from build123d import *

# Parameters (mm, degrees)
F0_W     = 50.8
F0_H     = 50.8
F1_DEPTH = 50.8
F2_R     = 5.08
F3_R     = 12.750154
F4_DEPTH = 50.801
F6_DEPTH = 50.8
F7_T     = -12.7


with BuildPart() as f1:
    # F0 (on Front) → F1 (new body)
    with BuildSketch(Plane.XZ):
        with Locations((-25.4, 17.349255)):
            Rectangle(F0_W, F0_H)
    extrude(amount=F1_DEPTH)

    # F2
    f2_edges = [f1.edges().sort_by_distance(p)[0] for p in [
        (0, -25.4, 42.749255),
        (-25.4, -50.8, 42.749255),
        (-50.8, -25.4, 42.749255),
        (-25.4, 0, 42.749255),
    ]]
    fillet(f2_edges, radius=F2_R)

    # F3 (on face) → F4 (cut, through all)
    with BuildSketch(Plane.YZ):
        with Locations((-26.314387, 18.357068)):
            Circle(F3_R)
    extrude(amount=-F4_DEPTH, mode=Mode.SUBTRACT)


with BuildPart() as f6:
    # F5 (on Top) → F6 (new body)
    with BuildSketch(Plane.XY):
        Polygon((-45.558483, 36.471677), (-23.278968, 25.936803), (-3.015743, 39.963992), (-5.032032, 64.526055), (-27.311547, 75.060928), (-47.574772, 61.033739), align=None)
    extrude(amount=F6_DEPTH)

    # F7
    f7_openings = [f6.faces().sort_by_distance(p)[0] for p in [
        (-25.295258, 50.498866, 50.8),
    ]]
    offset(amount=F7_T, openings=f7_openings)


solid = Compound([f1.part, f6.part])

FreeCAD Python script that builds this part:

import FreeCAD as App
import Part
import Sketcher
from FreeCAD import Vector
Q = App.Units.Quantity


def edges_at(feature, points):
    """Names of the edges that pass closest to the given points."""
    edges = feature.Shape.Edges
    near = lambda p: min(range(len(edges)), key=lambda i: edges[i].distToShape(Part.Vertex(*p))[0])
    return sorted({f"Edge{near(p) + 1}" for p in points})


def faces_at(feature, points):
    """Names of the faces that lie closest to the given points."""
    faces = feature.Shape.Faces
    near = lambda p: min(range(len(faces)), key=lambda i: faces[i].distToShape(Part.Vertex(*p))[0])
    return sorted({f"Face{near(p) + 1}" for p in points})

doc = App.newDocument("Part")
body = doc.addObject("PartDesign::Body", "Body")

# Sketch on XZ plane
sketch1 = body.newObject("Sketcher::SketchObject", "Sketch")
sketch1.AttachmentSupport = (doc.getObject("XZ_Plane"), [""])
sketch1.MapMode = "FlatFace"
sketch1.addGeometry([
    Part.LineSegment(Vector(-50.8, 42.749255, 0), Vector(-50.8, -8.050745, 0)),
    Part.LineSegment(Vector(-50.8, -8.050745, 0), Vector(0, -8.050745, 0)),
    Part.LineSegment(Vector(0, -8.050745, 0), Vector(0, 42.749255, 0)),
    Part.LineSegment(Vector(0, 42.749255, 0), Vector(-50.8, 42.749255, 0)),
], False)
sketch1.addConstraint([
    Sketcher.Constraint("Coincident", 0, 2, 1, 1),
    Sketcher.Constraint("Coincident", 1, 2, 2, 1),
    Sketcher.Constraint("Coincident", 2, 2, 3, 1),
    Sketcher.Constraint("Coincident", 3, 2, 0, 1),
    Sketcher.Constraint("Vertical", 0),
    Sketcher.Constraint("Horizontal", 1),
    Sketcher.Constraint("Vertical", 2),
    Sketcher.Constraint("Horizontal", 3),
    Sketcher.Constraint("PointOnObject", 1, 2, -2),
    Sketcher.Constraint("Equal", 3, 0),
    Sketcher.Constraint("DistanceX", 1, 1, 1, 2, Q("2 in")),
    Sketcher.Constraint("DistanceY", 0, 2, -1, 1, Q("8.050745 mm")),
])
pad1 = body.newObject("PartDesign::Pad", "Pad")
pad1.Profile = sketch1
pad1.Length = Q("2 in")
doc.recompute()

fillet = body.newObject("PartDesign::Fillet", "Fillet")
fillet.Base = (pad1, edges_at(pad1, [
    (0, -25.4, 42.749),
    (-25.4, -50.8, 42.749),
    (-50.8, -25.4, 42.749),
    (-25.4, 0, 42.749),
]))
fillet.Radius = Q("0.2 in")

# Sketch on YZ plane
sketch2 = body.newObject("Sketcher::SketchObject", "Sketch001")
sketch2.AttachmentSupport = (doc.getObject("YZ_Plane"), [""])
sketch2.MapMode = "FlatFace"
sketch2.addGeometry(Part.Circle(Vector(-26.314387, 18.357068, 0), Vector(0, 0, 1), 12.750154), False)
sketch2.addConstraint([
    Sketcher.Constraint("Diameter", 0, Q("25.500308 mm")),
    Sketcher.Constraint("DistanceY", -1, 1, 0, 3, Q("18.357068 mm")),
    Sketcher.Constraint("DistanceX", 0, 3, -1, 1, Q("26.314387 mm")),
])
pocket1 = body.newObject("PartDesign::Pocket", "Pocket")
pocket1.Profile = sketch2
pocket1.Type = "ThroughAll"
body2 = doc.addObject("PartDesign::Body", "Body001")

# Sketch on XY plane
sketch3 = body2.newObject("Sketcher::SketchObject", "Sketch002")
sketch3.AttachmentSupport = (doc.getObject("XY_Plane001"), [""])
sketch3.MapMode = "FlatFace"
sketch3.addGeometry([
    Part.LineSegment(Vector(-45.558483, 36.471677, 0), Vector(-23.278968, 25.936803, 0)),  # 0
    Part.LineSegment(Vector(-23.278968, 25.936803, 0), Vector(-3.015743, 39.963992, 0)),  # 1
    Part.LineSegment(Vector(-3.015743, 39.963992, 0), Vector(-5.032032, 64.526055, 0)),  # 2
    Part.LineSegment(Vector(-5.032032, 64.526055, 0), Vector(-27.311547, 75.060928, 0)),  # 3
    Part.LineSegment(Vector(-27.311547, 75.060928, 0), Vector(-47.574772, 61.033739, 0)),  # 4
    Part.LineSegment(Vector(-47.574772, 61.033739, 0), Vector(-45.558483, 36.471677, 0)),  # 5
], False)
sketch3.addConstraint([
    Sketcher.Constraint("Coincident", 0, 2, 1, 1),
    Sketcher.Constraint("Coincident", 1, 2, 2, 1),
    Sketcher.Constraint("Coincident", 2, 2, 3, 1),
    Sketcher.Constraint("Coincident", 3, 2, 4, 1),
    Sketcher.Constraint("Coincident", 4, 2, 5, 1),
    Sketcher.Constraint("Coincident", 5, 2, 0, 1),
    Sketcher.Constraint("Parallel", 0, 3),
    Sketcher.Constraint("Parallel", 1, 4),
    Sketcher.Constraint("Parallel", 2, 5),
    Sketcher.Constraint("Equal", 0, 1),
    Sketcher.Constraint("Equal", 1, 2),
    Sketcher.Constraint("Equal", 2, 3),
    Sketcher.Constraint("Distance", 1, Q("24.644681 mm")),
    Sketcher.Constraint("DistanceY", -1, 1, 1, 2, Q("39.963992 mm")),
    Sketcher.Constraint("DistanceY", -1, 1, 3, 2, Q("75.060928 mm")),
    Sketcher.Constraint("DistanceY", -1, 1, 4, 2, Q("61.033739 mm")),
    Sketcher.Constraint("DistanceX", 2, 2, 1, 2, Q("2.016289 mm")),
    Sketcher.Constraint("DistanceX", 0, 2, -1, 1, Q("23.278968 mm")),
])
pad2 = body2.newObject("PartDesign::Pad", "Pad001")
pad2.Profile = sketch3
pad2.Length = Q("2 in")
doc.recompute()

thickness = body2.newObject("PartDesign::Thickness", "Thickness")
thickness.Base = (pad2, faces_at(pad2, [(-25.295, 50.499, 50.8)]))
thickness.Value = Q("0.5 in")
thickness.Reversed = True
thickness.Join = "Arc"

doc.recompute()
